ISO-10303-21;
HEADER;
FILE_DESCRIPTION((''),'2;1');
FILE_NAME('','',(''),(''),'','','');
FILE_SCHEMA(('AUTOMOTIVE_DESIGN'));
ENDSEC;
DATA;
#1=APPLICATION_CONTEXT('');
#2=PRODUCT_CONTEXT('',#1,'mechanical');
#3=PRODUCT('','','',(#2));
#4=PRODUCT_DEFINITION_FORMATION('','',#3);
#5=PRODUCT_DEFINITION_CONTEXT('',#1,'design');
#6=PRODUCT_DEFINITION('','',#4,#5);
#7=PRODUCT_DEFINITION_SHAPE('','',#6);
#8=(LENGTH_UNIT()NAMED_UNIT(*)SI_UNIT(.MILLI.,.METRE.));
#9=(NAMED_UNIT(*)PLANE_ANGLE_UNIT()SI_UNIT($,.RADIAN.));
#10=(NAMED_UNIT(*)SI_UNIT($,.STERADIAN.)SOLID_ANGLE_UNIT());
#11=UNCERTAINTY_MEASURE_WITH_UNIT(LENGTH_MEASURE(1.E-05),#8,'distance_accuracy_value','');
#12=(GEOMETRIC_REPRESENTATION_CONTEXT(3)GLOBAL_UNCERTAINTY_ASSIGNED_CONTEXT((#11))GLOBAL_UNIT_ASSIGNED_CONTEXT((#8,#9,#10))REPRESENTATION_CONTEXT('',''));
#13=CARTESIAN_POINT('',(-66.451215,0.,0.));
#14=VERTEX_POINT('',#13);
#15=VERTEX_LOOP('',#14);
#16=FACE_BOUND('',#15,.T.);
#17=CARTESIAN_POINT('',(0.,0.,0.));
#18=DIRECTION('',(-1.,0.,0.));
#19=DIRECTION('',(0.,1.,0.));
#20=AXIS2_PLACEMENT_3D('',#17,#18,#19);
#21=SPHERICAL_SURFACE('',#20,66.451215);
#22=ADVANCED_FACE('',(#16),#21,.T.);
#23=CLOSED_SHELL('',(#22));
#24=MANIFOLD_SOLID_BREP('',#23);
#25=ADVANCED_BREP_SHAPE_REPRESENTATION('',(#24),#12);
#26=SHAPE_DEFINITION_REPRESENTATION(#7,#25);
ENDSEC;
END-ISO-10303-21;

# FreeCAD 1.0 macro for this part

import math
import FreeCAD as App
import Part
import Sketcher

V = App.Vector
Q = App.Units.Quantity

doc = App.newDocument("Part")
params = doc.addObject("Spreadsheet::Sheet", "Params")
for row, (alias, value) in enumerate([
    ("revolution_angle", "360 deg"),
], start=1):
    params.set(f"A{row}", alias)
    params.set(f"B{row}", "=" + value)
    params.setAlias(f"B{row}", alias)

body = doc.addObject("PartDesign::Body", "Body")

# Sketch on XY plane
sketch1 = body.newObject("Sketcher::SketchObject", "Sketch")
sketch1.AttachmentSupport = (doc.getObject("XY_Plane"), [""])
sketch1.MapMode = "FlatFace"
sketch1.addGeometry(Part.LineSegment(V(-66.451215, 0, 0), V(66.451215, 0, 0)), False)
sketch1.addGeometry(Part.ArcOfCircle(Part.Circle(V(0, 0, 0), V(0, 0, 1), 66.451215), math.radians(0), math.radians(180)), False)
sketch1.addConstraint(Sketcher.Constraint("Coincident", 0, 1, 1, 2))
sketch1.addConstraint(Sketcher.Constraint("Coincident", 1, 1, 0, 2))
sketch1.addConstraint(Sketcher.Constraint("Horizontal", 0))
sketch1.addConstraint(Sketcher.Constraint("Coincident", 1, 3, -1, 1))
sketch1.addConstraint(Sketcher.Constraint("PointOnObject", 0, 1, -1))
sketch1.addConstraint(Sketcher.Constraint("Radius", 1, Q("66.451215 mm")))
revolution = body.newObject("PartDesign::Revolution", "Revolution")
revolution.Profile = sketch1
revolution.ReferenceAxis = (sketch1, ["H_Axis"])
revolution.setExpression("Angle", "Params.revolution_angle")

doc.recompute()
